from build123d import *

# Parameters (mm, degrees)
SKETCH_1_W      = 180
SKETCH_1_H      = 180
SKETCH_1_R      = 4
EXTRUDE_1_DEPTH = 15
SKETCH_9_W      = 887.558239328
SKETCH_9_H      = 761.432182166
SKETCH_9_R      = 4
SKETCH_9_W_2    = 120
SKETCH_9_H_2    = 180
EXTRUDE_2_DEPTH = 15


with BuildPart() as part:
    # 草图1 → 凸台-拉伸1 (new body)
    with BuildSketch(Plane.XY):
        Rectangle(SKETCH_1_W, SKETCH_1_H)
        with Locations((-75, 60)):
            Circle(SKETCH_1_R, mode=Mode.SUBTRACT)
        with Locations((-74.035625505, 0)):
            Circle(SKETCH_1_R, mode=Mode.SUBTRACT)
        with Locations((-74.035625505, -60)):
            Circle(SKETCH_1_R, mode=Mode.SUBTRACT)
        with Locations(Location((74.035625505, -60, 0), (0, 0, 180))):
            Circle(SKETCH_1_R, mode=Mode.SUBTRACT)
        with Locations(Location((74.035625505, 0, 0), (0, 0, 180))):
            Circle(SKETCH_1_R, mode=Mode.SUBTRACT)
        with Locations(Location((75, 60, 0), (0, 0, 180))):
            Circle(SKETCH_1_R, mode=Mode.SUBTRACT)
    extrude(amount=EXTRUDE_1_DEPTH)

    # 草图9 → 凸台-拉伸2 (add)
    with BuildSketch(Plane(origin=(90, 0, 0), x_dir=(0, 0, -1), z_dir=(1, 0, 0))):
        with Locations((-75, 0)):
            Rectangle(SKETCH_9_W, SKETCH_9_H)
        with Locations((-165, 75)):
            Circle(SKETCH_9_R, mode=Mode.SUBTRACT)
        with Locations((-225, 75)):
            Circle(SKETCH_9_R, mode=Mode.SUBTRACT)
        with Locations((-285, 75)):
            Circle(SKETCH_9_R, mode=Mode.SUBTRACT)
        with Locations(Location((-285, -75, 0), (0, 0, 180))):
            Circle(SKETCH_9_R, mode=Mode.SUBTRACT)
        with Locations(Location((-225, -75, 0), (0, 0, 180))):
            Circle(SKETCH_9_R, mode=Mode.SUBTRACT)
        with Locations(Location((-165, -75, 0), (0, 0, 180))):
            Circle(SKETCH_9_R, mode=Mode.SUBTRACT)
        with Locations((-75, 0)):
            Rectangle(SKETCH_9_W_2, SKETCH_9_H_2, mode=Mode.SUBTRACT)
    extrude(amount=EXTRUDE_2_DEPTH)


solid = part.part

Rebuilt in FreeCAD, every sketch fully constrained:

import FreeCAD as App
import Part
import Sketcher
from FreeCAD import Vector
Q = App.Units.Quantity

doc = App.newDocument("Part")
body = doc.addObject("PartDesign::Body", "Body")

# Sketch on XY plane
sketch1 = body.newObject("Sketcher::SketchObject", "Sketch")
sketch1.AttachmentSupport = (doc.getObject("XY_Plane"), [""])
sketch1.MapMode = "FlatFace"
sketch1.addGeometry([
    Part.LineSegment(Vector(-90, 90, 0), Vector(-90, -90, 0)),  # 0
    Part.LineSegment(Vector(-90, -90, 0), Vector(90, -90, 0)),  # 1
    Part.LineSegment(Vector(90, -90, 0), Vector(90, 90, 0)),  # 2
    Part.LineSegment(Vector(90, 90, 0), Vector(-90, 90, 0)),  # 3
    Part.Circle(Vector(-74, -60, 0), Vector(0, 0, 1), 4),  # 4
    Part.Circle(Vector(74, -60, 0), Vector(0, 0, 1), 4),  # 5
    Part.Circle(Vector(-74, 0, 0), Vector(0, 0, 1), 4),  # 6
    Part.Circle(Vector(-75, 60, 0), Vector(0, 0, 1), 4),  # 7
    Part.Circle(Vector(74, 0, 0), Vector(0, 0, 1), 4),  # 8
    Part.Circle(Vector(75, 60, 0), Vector(0, 0, 1), 4),  # 9
], False)
sketch1.addConstraint([
    Sketcher.Constraint("Coincident", 0, 2, 1, 1),
    Sketcher.Constraint("Coincident", 1, 2, 2, 1),
    Sketcher.Constraint("Coincident", 2, 2, 3, 1),
    Sketcher.Constraint("Coincident", 3, 2, 0, 1),
    Sketcher.Constraint("Vertical", 0),
    Sketcher.Constraint("Horizontal", 1),
    Sketcher.Constraint("Vertical", 2),
    Sketcher.Constraint("Horizontal", 3),
    Sketcher.Constraint("Equal", 4, 5),
    Sketcher.Constraint("Equal", 5, 6),
    Sketcher.Constraint("Equal", 6, 7),
    Sketcher.Constraint("Equal", 7, 8),
    Sketcher.Constraint("Equal", 8, 9),
    Sketcher.Constraint("Symmetric", 6, 3, 8, 3, -1, 1),
    Sketcher.Constraint("Symmetric", 0, 2, 2, 2, -1, 1),
    Sketcher.Constraint("Symmetric", 4, 3, 5, 3, -2),
    Sketcher.Constraint("Symmetric", 7, 3, 9, 3, -2),
    Sketcher.Constraint("PointOnObject", 6, 3, -1),
    Sketcher.Constraint("Vertical", 4, 3, 6, 3),
    Sketcher.Constraint("Equal", 3, 0),
    Sketcher.Constraint("Diameter", 4, Q("8 mm")),
    Sketcher.Constraint("DistanceX", 1, 1, 1, 2, Q("180 mm")),
    Sketcher.Constraint("DistanceY", 4, 3, -1, 1, Q("60 mm")),
    Sketcher.Constraint("DistanceX", 7, 3, -1, 1, Q("75 mm")),
    Sketcher.Constraint("DistanceY", -1, 1, 7, 3, Q("60 mm")),
    Sketcher.Constraint("DistanceX", 4, 3, 5, 3, Q("148.071251 mm")),
])
pad1 = body.newObject("PartDesign::Pad", "Pad")
pad1.Profile = sketch1
pad1.Length = 15

# Sketch on YZ plane
sketch2 = body.newObject("Sketcher::SketchObject", "Sketch001")
sketch2.AttachmentSupport = (doc.getObject("YZ_Plane"), [""])
sketch2.MapMode = "FlatFace"
sketch2.AttachmentOffset = App.Placement(Vector(0, 0, 90), App.Rotation())
sketch2.addGeometry([
    Part.LineSegment(Vector(380.7, 518.8, 0), Vector(-380.7, 518.8, 0)),  # 0
    Part.LineSegment(Vector(-380.7, 518.8, 0), Vector(-380.7, -368.8, 0)),  # 1
    Part.LineSegment(Vector(-380.7, -368.8, 0), Vector(380.7, -368.8, 0)),  # 2
    Part.LineSegment(Vector(380.7, -368.8, 0), Vector(380.7, 518.8, 0)),  # 3
    Part.Circle(Vector(-75, 285, 0), Vector(0, 0, 1), 4),  # 4
    Part.Circle(Vector(-75, 225, 0), Vector(0, 0, 1), 4),  # 5
    Part.Circle(Vector(-75, 165, 0), Vector(0, 0, 1), 4),  # 6
    Part.Circle(Vector(75, 285, 0), Vector(0, 0, 1), 4),  # 7
    Part.Circle(Vector(75, 225, 0), Vector(0, 0, 1), 4),  # 8
    Part.Circle(Vector(75, 165, 0), Vector(0, 0, 1), 4),  # 9
    Part.LineSegment(Vector(-90, 15, 0), Vector(-90, 135, 0)),  # 10
    Part.LineSegment(Vector(-90, 135, 0), Vector(90, 135, 0)),  # 11
    Part.LineSegment(Vector(90, 135, 0), Vector(90, 15, 0)),  # 12
    Part.LineSegment(Vector(90, 15, 0), Vector(-90, 15, 0)),  # 13
], False)
sketch2.addConstraint([
    Sketcher.Constraint("Coincident", 0, 2, 1, 1),
    Sketcher.Constraint("Coincident", 1, 2, 2, 1),
    Sketcher.Constraint("Coincident", 2, 2, 3, 1),
    Sketcher.Constraint("Coincident", 3, 2, 0, 1),
    Sketcher.Constraint("Coincident", 10, 2, 11, 1),
    Sketcher.Constraint("Coincident", 11, 2, 12, 1),
    Sketcher.Constraint("Coincident", 12, 2, 13, 1),
    Sketcher.Constraint("Coincident", 13, 2, 10, 1),
    Sketcher.Constraint("Horizontal", 0),
    Sketcher.Constraint("Vertical", 1),
    Sketcher.Constraint("Horizontal", 2),
    Sketcher.Constraint("Vertical", 3),
    Sketcher.Constraint("Vertical", 10),
    Sketcher.Constraint("Horizontal", 11),
    Sketcher.Constraint("Vertical", 12),
    Sketcher.Constraint("Horizontal", 13),
    Sketcher.Constraint("Equal", 4, 5),
    Sketcher.Constraint("Equal", 5, 6),
    Sketcher.Constraint("Equal", 6, 7),
    Sketcher.Constraint("Equal", 7, 8),
    Sketcher.Constraint("Equal", 8, 9),
    Sketcher.Constraint("Symmetric", 4, 3, 7, 3, -2),
    Sketcher.Constraint("Symmetric", 5, 3, 8, 3, -2),
    Sketcher.Constraint("Symmetric", 6, 3, 9, 3, -2),
    Sketcher.Constraint("Vertical", 4, 3, 5, 3),
    Sketcher.Constraint("Vertical", 5, 3, 6, 3),
    Sketcher.Constraint("Diameter", 4, Q("8 mm")),
    Sketcher.Constraint("DistanceX", 11, 1, 11, 2, Q("180 mm")),
    Sketcher.Constraint("DistanceY", 10, 1, 10, 2, Q("120 mm")),
    Sketcher.Constraint("DistanceX", 4, 3, -1, 1, Q("75 mm")),
    Sketcher.Constraint("DistanceY", -1, 1, 4, 3, Q("285 mm")),
    Sketcher.Constraint("DistanceY", -1, 1, 5, 3, Q("225 mm")),
    Sketcher.Constraint("DistanceY", -1, 1, 6, 3, Q("165 mm")),
    Sketcher.Constraint("DistanceX", 10, 2, -1, 1, Q("90 mm")),
    Sketcher.Constraint("DistanceY", -1, 1, 10, 2, Q("135 mm")),
    Sketcher.Constraint("DistanceY", 1, 2, 1, 1, Q("887.558239 mm")),
    Sketcher.Constraint("DistanceX", 0, 2, 0, 1, Q("761.432182 mm")),
    Sketcher.Constraint("DistanceX", 0, 2, -1, 1, Q("380.716091 mm")),
    Sketcher.Constraint("DistanceY", -1, 1, 0, 2, Q("518.77912 mm")),
])
pad2 = body.newObject("PartDesign::Pad", "Pad001")
pad2.Profile = sketch2
pad2.Length = 15

doc.recompute()
